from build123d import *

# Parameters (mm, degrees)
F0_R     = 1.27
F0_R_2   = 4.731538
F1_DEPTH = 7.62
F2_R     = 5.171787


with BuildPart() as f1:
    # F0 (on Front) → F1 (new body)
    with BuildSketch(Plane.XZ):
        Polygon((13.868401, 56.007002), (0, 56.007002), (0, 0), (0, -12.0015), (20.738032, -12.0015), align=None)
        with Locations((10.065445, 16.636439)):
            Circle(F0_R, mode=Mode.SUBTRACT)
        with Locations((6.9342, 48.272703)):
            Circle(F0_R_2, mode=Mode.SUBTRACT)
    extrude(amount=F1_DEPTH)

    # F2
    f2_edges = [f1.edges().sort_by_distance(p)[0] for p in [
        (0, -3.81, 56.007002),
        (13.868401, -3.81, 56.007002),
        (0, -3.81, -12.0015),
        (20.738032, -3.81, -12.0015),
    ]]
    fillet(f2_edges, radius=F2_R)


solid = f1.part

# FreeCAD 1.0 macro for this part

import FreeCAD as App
import Part
import Sketcher
Q = App.Units.Quantity


def edges_at(feature, points):
    """Names of the edges that pass closest to the given points."""
    edges = feature.Shape.Edges
    near = lambda p: min(range(len(edges)), key=lambda i: edges[i].distToShape(Part.Vertex(*p))[0])
    return sorted({f"Edge{near(p) + 1}" for p in points})

doc = App.newDocument("Part")
body = doc.addObject("PartDesign::Body", "Body")

# Sketch on XZ plane
sketch1 = doc.addObject("Sketcher::SketchObject", "Sketch")
body.addObject(sketch1)
sketch1.AttachmentSupport = (doc.XZ_Plane, [""])
sketch1.MapMode = "FlatFace"
sketch1.addGeometry(Part.LineSegment(App.Vector(13.9, 56, 0), App.Vector(0, 56, 0)), False)
sketch1.addGeometry(Part.LineSegment(App.Vector(0, 56, 0), App.Vector(0, -12, 0)), False)
sketch1.addGeometry(Part.LineSegment(App.Vector(0, -12, 0), App.Vector(20.7, -12, 0)), False)
sketch1.addGeometry(Part.LineSegment(App.Vector(20.7, -12, 0), App.Vector(13.9, 56, 0)), False)
sketch1.addGeometry(Part.Circle(App.Vector(10.1, 16.6, 0), App.Vector(0, 0, 1), 1.3), False)
sketch1.addGeometry(Part.Circle(App.Vector(6.9, 48.3, 0), App.Vector(0, 0, 1), 4.7), False)
sketch1.addConstraint(Sketcher.Constraint("Coincident", 0, 2, 1, 1))
sketch1.addConstraint(Sketcher.Constraint("Coincident", 1, 2, 2, 1))
sketch1.addConstraint(Sketcher.Constraint("Coincident", 2, 2, 3, 1))
sketch1.addConstraint(Sketcher.Constraint("Coincident", 3, 2, 0, 1))
sketch1.addConstraint(Sketcher.Constraint("Horizontal", 0))
sketch1.addConstraint(Sketcher.Constraint("Vertical", 1))
sketch1.addConstraint(Sketcher.Constraint("Horizontal", 2))
sketch1.addConstraint(Sketcher.Constraint("PointOnObject", 0, 2, -2))
sketch1.addConstraint(Sketcher.Constraint("Diameter", 4, Q("0.1 in")))
sketch1.addConstraint(Sketcher.Constraint("DistanceX", 0, 2, 0, 1, Q("0.546 in")))
sketch1.addConstraint(Sketcher.Constraint("DistanceY", 1, 2, 1, 1, Q("2.6775001 in")))
sketch1.addConstraint(Sketcher.Constraint("DistanceX", -1, 1, 5, 3, Q("0.273 in")))
sketch1.addConstraint(Sketcher.Constraint("DistanceY", -1, 1, 0, 2, Q("2.2050001 in")))
sketch1.addConstraint(Sketcher.Constraint("DistanceY", 1, 2, 5, 3, Q("2.3730001 in")))
sketch1.addConstraint(Sketcher.Constraint("Diameter", 5, Q("9.463076 mm")))
sketch1.addConstraint(Sketcher.Constraint("DistanceX", 2, 1, 2, 2, Q("20.738032 mm")))
sketch1.addConstraint(Sketcher.Constraint("DistanceY", -1, 1, 4, 3, Q("16.636439 mm")))
sketch1.addConstraint(Sketcher.Constraint("DistanceX", -1, 1, 4, 3, Q("10.065445 mm")))
pad1 = doc.addObject("PartDesign::Pad", "Pad")
body.addObject(pad1)
pad1.Profile = sketch1
pad1.Length = Q("0.3 in")
doc.recompute()

fillet = doc.addObject("PartDesign::Fillet", "Fillet")
body.addObject(fillet)
fillet.Base = (pad1, edges_at(pad1, [
    (0, -3.81, 56.007),
    (13.868, -3.81, 56.007),
    (0, -3.81, -12.002),
    (20.738, -3.81, -12.002),
]))
fillet.Radius = 5.171787

doc.recompute()
